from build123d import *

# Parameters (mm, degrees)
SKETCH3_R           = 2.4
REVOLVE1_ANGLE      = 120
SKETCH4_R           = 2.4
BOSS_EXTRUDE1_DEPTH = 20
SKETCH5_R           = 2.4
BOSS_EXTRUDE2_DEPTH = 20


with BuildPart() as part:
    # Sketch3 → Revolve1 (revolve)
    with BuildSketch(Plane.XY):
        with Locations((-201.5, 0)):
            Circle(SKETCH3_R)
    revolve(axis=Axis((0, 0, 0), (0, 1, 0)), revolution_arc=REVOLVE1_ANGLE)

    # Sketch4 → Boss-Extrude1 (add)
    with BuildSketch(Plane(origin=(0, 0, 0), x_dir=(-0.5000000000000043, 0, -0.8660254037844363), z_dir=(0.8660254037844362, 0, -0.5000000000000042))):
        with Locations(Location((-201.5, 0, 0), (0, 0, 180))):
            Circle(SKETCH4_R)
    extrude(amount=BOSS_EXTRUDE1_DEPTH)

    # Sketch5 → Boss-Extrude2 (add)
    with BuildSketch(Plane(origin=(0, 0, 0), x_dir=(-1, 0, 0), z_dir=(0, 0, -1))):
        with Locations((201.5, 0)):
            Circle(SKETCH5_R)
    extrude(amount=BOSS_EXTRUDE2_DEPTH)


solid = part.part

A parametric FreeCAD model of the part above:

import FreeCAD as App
import Part
import Sketcher
Q = App.Units.Quantity

doc = App.newDocument("Part")
body = doc.addObject("PartDesign::Body", "Body")

# Sketch on XY plane
sketch1 = body.newObject("Sketcher::SketchObject", "Sketch")
sketch1.AttachmentSupport = (doc.getObject("XY_Plane"), [""])
sketch1.MapMode = "FlatFace"
sketch1.addGeometry(Part.Circle(App.Vector(-201.5, 0, 0), App.Vector(0, 0, 1), 2.4), False)
sketch1.addConstraint(Sketcher.Constraint("PointOnObject", 0, 3, -1))
sketch1.addConstraint(Sketcher.Constraint("Diameter", 0, Q("4.8 mm")))
sketch1.addConstraint(Sketcher.Constraint("DistanceX", 0, 3, -1, 1, Q("201.5 mm")))
revolution = body.newObject("PartDesign::Revolution", "Revolution")
revolution.Profile = sketch1
revolution.ReferenceAxis = (sketch1, ["V_Axis"])
revolution.Angle = 120

# Sketch on an angled plane
sketch2 = body.newObject("Sketcher::SketchObject", "Sketch001")
sketch2.Placement = App.Placement(App.Vector(0, 0, 0), App.Rotation(App.Vector(-0.5, 0, -0.866025404), App.Vector(0, 1, 0), App.Vector(0.866025404, 0, -0.5), "ZXY"))
sketch2.addGeometry(Part.Circle(App.Vector(-201.5, 0, 0), App.Vector(0, 0, 1), 2.4), False)
sketch2.addConstraint(Sketcher.Constraint("PointOnObject", 0, 3, -1))
sketch2.addConstraint(Sketcher.Constraint("Diameter", 0, Q("4.8 mm")))
sketch2.addConstraint(Sketcher.Constraint("DistanceX", 0, 3, -1, 1, Q("201.5 mm")))
pad1 = body.newObject("PartDesign::Pad", "Pad")
pad1.Profile = sketch2
pad1.Length = 20

# Sketch on XY plane
sketch3 = body.newObject("Sketcher::SketchObject", "Sketch002")
sketch3.AttachmentSupport = (doc.getObject("XY_Plane"), [""])
sketch3.MapMode = "FlatFace"
sketch3.addGeometry(Part.Circle(App.Vector(-201.5, 0, 0), App.Vector(0, 0, 1), 2.4), False)
sketch3.addConstraint(Sketcher.Constraint("PointOnObject", 0, 3, -1))
sketch3.addConstraint(Sketcher.Constraint("Diameter", 0, Q("4.8 mm")))
sketch3.addConstraint(Sketcher.Constraint("DistanceX", 0, 3, -1, 1, Q("201.5 mm")))
pad2 = body.newObject("PartDesign::Pad", "Pad001")
pad2.Profile = sketch3
pad2.Length = 20
pad2.Reversed = True

doc.recompute()
